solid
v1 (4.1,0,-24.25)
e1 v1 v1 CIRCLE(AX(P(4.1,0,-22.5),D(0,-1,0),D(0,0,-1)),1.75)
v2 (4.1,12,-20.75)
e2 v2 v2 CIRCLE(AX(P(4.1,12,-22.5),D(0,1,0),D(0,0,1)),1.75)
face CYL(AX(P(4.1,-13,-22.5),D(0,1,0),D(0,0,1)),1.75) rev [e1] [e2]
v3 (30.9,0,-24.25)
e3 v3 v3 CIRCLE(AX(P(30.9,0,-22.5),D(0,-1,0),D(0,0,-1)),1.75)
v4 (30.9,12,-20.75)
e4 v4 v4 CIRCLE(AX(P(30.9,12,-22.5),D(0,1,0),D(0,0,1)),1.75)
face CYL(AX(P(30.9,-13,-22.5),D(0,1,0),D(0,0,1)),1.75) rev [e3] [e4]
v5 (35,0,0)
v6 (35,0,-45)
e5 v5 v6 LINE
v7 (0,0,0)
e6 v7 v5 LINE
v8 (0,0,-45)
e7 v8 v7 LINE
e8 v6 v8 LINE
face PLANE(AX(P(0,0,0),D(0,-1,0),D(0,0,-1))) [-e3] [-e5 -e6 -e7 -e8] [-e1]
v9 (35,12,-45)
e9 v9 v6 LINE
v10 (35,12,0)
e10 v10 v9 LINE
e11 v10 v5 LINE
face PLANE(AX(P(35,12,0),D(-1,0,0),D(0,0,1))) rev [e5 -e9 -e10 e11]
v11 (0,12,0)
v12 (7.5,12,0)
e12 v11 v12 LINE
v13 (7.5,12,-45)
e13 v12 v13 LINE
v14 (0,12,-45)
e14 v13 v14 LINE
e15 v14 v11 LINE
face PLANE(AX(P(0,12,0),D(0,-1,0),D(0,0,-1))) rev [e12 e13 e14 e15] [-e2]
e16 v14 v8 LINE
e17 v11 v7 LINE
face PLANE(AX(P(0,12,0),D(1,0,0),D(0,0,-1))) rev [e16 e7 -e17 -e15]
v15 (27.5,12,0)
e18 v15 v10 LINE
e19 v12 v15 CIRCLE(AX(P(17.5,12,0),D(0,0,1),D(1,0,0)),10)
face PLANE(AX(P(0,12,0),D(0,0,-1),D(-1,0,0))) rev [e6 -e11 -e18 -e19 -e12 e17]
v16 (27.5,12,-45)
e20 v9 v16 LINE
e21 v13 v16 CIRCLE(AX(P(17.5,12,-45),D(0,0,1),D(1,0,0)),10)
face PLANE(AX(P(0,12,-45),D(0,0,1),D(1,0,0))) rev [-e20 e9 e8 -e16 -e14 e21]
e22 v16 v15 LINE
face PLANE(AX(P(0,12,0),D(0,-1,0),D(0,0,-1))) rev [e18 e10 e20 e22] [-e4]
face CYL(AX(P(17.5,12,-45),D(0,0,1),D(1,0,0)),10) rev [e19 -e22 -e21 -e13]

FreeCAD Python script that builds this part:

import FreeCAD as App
import Part
import Sketcher
from FreeCAD import Vector

doc = App.newDocument("Part")
params = doc.addObject("Spreadsheet::Sheet", "Params")
for row, (alias, value) in enumerate([
    ("sketch1_width", "35 mm"),
    ("sketch1_height", "45 mm"),
    ("pad1_length", "12 mm"),
    ("sketch2_diameter", "20 mm"),
    ("sketch3_diameter", "3.5 mm"),
    ("pocket2_length", "25 mm"),
], start=1):
    params.set(f"A{row}", alias)
    params.set(f"B{row}", "=" + value)
    params.setAlias(f"B{row}", alias)

body = doc.addObject("PartDesign::Body", "Body")

sketch1 = body.newObject("Sketcher::SketchObject", "Sketch")
sketch1.AttachmentSupport = (doc.getObject("XZ_Plane"), [""])
sketch1.MapMode = "FlatFace"
sketch1.addGeometry([
    Part.LineSegment(Vector(0, -45, 0), Vector(0, 0, 0)),
    Part.LineSegment(Vector(0, 0, 0), Vector(35, 0, 0)),
    Part.LineSegment(Vector(35, 0, 0), Vector(35, -45, 0)),
    Part.LineSegment(Vector(35, -45, 0), Vector(0, -45, 0)),
], False)
sketch1.addConstraint([
    Sketcher.Constraint("Coincident", 0, 2, 1, 1),
    Sketcher.Constraint("Coincident", 1, 2, 2, 1),
    Sketcher.Constraint("Coincident", 2, 2, 3, 1),
    Sketcher.Constraint("Coincident", 3, 2, 0, 1),
    Sketcher.Constraint("Vertical", 0),
    Sketcher.Constraint("Horizontal", 1),
    Sketcher.Constraint("Vertical", 2),
    Sketcher.Constraint("Horizontal", 3),
    Sketcher.Constraint("Coincident", 0, 2, -1, 1),
    Sketcher.Constraint("DistanceX", 1, 1, 1, 2, 35.0),
    Sketcher.Constraint("DistanceY", 0, 1, 0, 2, 45.0),
])
sketch1.setExpression("Constraints[9]", "Params.sketch1_width")
sketch1.setExpression("Constraints[10]", "Params.sketch1_height")
pad1 = body.newObject("PartDesign::Pad", "Pad")
pad1.Profile = sketch1
pad1.setExpression("Length", "Params.pad1_length")
pad1.Reversed = True

sketch2 = body.newObject("Sketcher::SketchObject", "Sketch001")
sketch2.AttachmentSupport = (doc.getObject("XY_Plane"), [""])
sketch2.MapMode = "FlatFace"
sketch2.addGeometry(Part.Circle(Vector(17.5, 12, 0), Vector(0, 0, 1), 10), False)
sketch2.addConstraint([
    Sketcher.Constraint("Diameter", 0, 20.0),
    Sketcher.Constraint("DistanceY", -1, 1, 0, 3, 12.0),
    Sketcher.Constraint("DistanceX", -1, 1, 0, 3, 17.5),
])
sketch2.setExpression("Constraints[0]", "Params.sketch2_diameter")
pocket1 = body.newObject("PartDesign::Pocket", "Pocket")
pocket1.Profile = sketch2
pocket1.Type = "ThroughAll"

sketch3 = body.newObject("Sketcher::SketchObject", "Sketch002")
sketch3.AttachmentSupport = (doc.getObject("XZ_Plane"), [""])
sketch3.MapMode = "FlatFace"
sketch3.AttachmentOffset = App.Placement(Vector(0, 0, -12), App.Rotation())
sketch3.addGeometry([
    Part.Circle(Vector(30.9, -22.5, 0), Vector(0, 0, 1), 1.75),
    Part.Circle(Vector(4.1, -22.5, 0), Vector(0, 0, 1), 1.75),
], False)
sketch3.addConstraint([
    Sketcher.Constraint("Equal", 0, 1),
    Sketcher.Constraint("Horizontal", 0, 3, 1, 3),
    Sketcher.Constraint("Diameter", 0, 3.5),
    Sketcher.Constraint("DistanceX", -1, 1, 0, 3, 30.9),
    Sketcher.Constraint("DistanceY", 0, 3, -1, 1, 22.5),
    Sketcher.Constraint("DistanceX", -1, 1, 1, 3, 4.1),
])
sketch3.setExpression("Constraints[2]", "Params.sketch3_diameter")
pocket2 = body.newObject("PartDesign::Pocket", "Pocket001")
pocket2.Profile = sketch3
pocket2.setExpression("Length", "Params.pocket2_length")
pocket2.Reversed = True

doc.recompute()
